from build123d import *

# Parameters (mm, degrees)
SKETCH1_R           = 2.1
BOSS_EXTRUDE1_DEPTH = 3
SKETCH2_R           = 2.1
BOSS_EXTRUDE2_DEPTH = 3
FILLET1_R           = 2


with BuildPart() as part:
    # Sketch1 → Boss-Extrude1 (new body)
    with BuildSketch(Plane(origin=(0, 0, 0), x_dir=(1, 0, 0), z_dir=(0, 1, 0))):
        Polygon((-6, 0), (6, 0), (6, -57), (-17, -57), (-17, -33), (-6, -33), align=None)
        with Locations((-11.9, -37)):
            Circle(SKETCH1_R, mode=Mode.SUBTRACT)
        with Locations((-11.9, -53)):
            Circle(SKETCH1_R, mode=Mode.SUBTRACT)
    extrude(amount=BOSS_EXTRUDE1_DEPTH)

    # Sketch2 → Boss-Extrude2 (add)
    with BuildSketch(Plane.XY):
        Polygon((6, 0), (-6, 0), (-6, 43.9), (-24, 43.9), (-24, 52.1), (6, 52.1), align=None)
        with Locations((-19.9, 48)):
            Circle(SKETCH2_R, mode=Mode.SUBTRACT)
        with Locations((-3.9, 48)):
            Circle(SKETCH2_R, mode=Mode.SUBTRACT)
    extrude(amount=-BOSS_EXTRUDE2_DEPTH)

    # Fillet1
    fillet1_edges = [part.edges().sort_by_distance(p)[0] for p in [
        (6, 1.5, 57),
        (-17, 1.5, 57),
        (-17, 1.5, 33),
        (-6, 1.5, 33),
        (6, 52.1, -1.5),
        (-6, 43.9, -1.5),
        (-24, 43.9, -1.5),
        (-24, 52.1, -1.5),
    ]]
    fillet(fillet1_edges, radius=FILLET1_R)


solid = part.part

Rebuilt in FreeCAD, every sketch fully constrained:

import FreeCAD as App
import Part
import Sketcher
Q = App.Units.Quantity


def edges_at(feature, points):
    """Names of the edges that pass closest to the given points."""
    edges = feature.Shape.Edges
    near = lambda p: min(range(len(edges)), key=lambda i: edges[i].distToShape(Part.Vertex(*p))[0])
    return sorted({f"Edge{near(p) + 1}" for p in points})


def add_polygon(sketch, points):
    """Adds a closed chain of lines whose ends are joined by coincident constraints."""
    first, n = sketch.GeometryCount, len(points)
    for a, b in zip(points, points[1:] + points[:1]):
        sketch.addGeometry(Part.LineSegment(App.Vector(*a, 0), App.Vector(*b, 0)), False)
    for i in range(n):
        sketch.addConstraint(Sketcher.Constraint("Coincident", first + i, 2, first + (i + 1) % n, 1))

doc = App.newDocument("Part")
body = doc.addObject("PartDesign::Body", "Body")

sketch1 = body.newObject("Sketcher::SketchObject", "Sketch")
sketch1.AttachmentSupport = (doc.getObject("XZ_Plane"), [""])
sketch1.MapMode = "FlatFace"
add_polygon(sketch1, [(6, 0), (-6, 0), (-6, 33), (-17, 33), (-17, 57), (6, 57)])
sketch1.addGeometry(Part.Circle(App.Vector(-11.9, 53, 0), App.Vector(0, 0, 1), 2.1), False)
sketch1.addGeometry(Part.Circle(App.Vector(-11.9, 37, 0), App.Vector(0, 0, 1), 2.1), False)
sketch1.addConstraint([
    Sketcher.Constraint("Horizontal", 0),
    Sketcher.Constraint("Vertical", 1),
    Sketcher.Constraint("Horizontal", 2),
    Sketcher.Constraint("Vertical", 3),
    Sketcher.Constraint("Horizontal", 4),
    Sketcher.Constraint("Vertical", 5),
    Sketcher.Constraint("Equal", 6, 7),
    Sketcher.Constraint("Symmetric", 0, 2, 5, 2, -1, 1),
    Sketcher.Constraint("Vertical", 6, 3, 7, 3),
    Sketcher.Constraint("Diameter", 6, Q("4.2 mm")),
    Sketcher.Constraint("DistanceX", 0, 2, 0, 1, Q("12 mm")),
    Sketcher.Constraint("DistanceX", 2, 2, 2, 1, Q("11 mm")),
    Sketcher.Constraint("DistanceY", 1, 1, 1, 2, Q("33 mm")),
    Sketcher.Constraint("DistanceY", 3, 1, 3, 2, Q("24 mm")),
    Sketcher.Constraint("DistanceY", -1, 1, 6, 3, Q("53 mm")),
    Sketcher.Constraint("DistanceY", -1, 1, 7, 3, Q("37 mm")),
    Sketcher.Constraint("DistanceX", 6, 3, -1, 1, Q("11.9 mm")),
])
pad1 = body.newObject("PartDesign::Pad", "Pad")
pad1.Profile = sketch1
pad1.Length = 3
pad1.Reversed = True

sketch2 = body.newObject("Sketcher::SketchObject", "Sketch001")
sketch2.AttachmentSupport = (doc.getObject("XY_Plane"), [""])
sketch2.MapMode = "FlatFace"
add_polygon(sketch2, [(-6, 0), (6, 0), (6, 52.1), (-24, 52.1), (-24, 43.9), (-6, 43.9)])
sketch2.addGeometry(Part.Circle(App.Vector(-3.9, 48, 0), App.Vector(0, 0, 1), 2.1), False)
sketch2.addGeometry(Part.Circle(App.Vector(-19.9, 48, 0), App.Vector(0, 0, 1), 2.1), False)
sketch2.addConstraint([
    Sketcher.Constraint("Horizontal", 0),
    Sketcher.Constraint("Vertical", 1),
    Sketcher.Constraint("Horizontal", 2),
    Sketcher.Constraint("Vertical", 3),
    Sketcher.Constraint("Horizontal", 4),
    Sketcher.Constraint("Vertical", 5),
    Sketcher.Constraint("Equal", 6, 7),
    Sketcher.Constraint("Symmetric", 0, 2, 5, 2, -1, 1),
    Sketcher.Constraint("Horizontal", 6, 3, 7, 3),
    Sketcher.Constraint("Diameter", 6, Q("4.2 mm")),
    Sketcher.Constraint("DistanceX", 0, 1, 0, 2, Q("12 mm")),
    Sketcher.Constraint("DistanceX", 2, 2, 2, 1, Q("30 mm")),
    Sketcher.Constraint("DistanceY", 1, 1, 1, 2, Q("52.1 mm")),
    Sketcher.Constraint("DistanceY", 3, 2, 3, 1, Q("8.2 mm")),
    Sketcher.Constraint("DistanceY", -1, 1, 6, 3, Q("48 mm")),
    Sketcher.Constraint("DistanceX", 7, 3, 6, 3, Q("16 mm")),
    Sketcher.Constraint("DistanceX", 6, 3, -1, 1, Q("3.9 mm")),
])
pad2 = body.newObject("PartDesign::Pad", "Pad001")
pad2.Profile = sketch2
pad2.Length = 3
pad2.Reversed = True
doc.recompute()

fillet = body.newObject("PartDesign::Fillet", "Fillet")
fillet.Base = (pad2, edges_at(pad2, [
    (6, 1.5, 57),
    (-17, 1.5, 57),
    (-17, 1.5, 33),
    (-6, 1.5, 33),
    (6, 52.1, -1.5),
    (-6, 43.9, -1.5),
    (-24, 43.9, -1.5),
    (-24, 52.1, -1.5),
]))
fillet.Radius = 2

doc.recompute()
